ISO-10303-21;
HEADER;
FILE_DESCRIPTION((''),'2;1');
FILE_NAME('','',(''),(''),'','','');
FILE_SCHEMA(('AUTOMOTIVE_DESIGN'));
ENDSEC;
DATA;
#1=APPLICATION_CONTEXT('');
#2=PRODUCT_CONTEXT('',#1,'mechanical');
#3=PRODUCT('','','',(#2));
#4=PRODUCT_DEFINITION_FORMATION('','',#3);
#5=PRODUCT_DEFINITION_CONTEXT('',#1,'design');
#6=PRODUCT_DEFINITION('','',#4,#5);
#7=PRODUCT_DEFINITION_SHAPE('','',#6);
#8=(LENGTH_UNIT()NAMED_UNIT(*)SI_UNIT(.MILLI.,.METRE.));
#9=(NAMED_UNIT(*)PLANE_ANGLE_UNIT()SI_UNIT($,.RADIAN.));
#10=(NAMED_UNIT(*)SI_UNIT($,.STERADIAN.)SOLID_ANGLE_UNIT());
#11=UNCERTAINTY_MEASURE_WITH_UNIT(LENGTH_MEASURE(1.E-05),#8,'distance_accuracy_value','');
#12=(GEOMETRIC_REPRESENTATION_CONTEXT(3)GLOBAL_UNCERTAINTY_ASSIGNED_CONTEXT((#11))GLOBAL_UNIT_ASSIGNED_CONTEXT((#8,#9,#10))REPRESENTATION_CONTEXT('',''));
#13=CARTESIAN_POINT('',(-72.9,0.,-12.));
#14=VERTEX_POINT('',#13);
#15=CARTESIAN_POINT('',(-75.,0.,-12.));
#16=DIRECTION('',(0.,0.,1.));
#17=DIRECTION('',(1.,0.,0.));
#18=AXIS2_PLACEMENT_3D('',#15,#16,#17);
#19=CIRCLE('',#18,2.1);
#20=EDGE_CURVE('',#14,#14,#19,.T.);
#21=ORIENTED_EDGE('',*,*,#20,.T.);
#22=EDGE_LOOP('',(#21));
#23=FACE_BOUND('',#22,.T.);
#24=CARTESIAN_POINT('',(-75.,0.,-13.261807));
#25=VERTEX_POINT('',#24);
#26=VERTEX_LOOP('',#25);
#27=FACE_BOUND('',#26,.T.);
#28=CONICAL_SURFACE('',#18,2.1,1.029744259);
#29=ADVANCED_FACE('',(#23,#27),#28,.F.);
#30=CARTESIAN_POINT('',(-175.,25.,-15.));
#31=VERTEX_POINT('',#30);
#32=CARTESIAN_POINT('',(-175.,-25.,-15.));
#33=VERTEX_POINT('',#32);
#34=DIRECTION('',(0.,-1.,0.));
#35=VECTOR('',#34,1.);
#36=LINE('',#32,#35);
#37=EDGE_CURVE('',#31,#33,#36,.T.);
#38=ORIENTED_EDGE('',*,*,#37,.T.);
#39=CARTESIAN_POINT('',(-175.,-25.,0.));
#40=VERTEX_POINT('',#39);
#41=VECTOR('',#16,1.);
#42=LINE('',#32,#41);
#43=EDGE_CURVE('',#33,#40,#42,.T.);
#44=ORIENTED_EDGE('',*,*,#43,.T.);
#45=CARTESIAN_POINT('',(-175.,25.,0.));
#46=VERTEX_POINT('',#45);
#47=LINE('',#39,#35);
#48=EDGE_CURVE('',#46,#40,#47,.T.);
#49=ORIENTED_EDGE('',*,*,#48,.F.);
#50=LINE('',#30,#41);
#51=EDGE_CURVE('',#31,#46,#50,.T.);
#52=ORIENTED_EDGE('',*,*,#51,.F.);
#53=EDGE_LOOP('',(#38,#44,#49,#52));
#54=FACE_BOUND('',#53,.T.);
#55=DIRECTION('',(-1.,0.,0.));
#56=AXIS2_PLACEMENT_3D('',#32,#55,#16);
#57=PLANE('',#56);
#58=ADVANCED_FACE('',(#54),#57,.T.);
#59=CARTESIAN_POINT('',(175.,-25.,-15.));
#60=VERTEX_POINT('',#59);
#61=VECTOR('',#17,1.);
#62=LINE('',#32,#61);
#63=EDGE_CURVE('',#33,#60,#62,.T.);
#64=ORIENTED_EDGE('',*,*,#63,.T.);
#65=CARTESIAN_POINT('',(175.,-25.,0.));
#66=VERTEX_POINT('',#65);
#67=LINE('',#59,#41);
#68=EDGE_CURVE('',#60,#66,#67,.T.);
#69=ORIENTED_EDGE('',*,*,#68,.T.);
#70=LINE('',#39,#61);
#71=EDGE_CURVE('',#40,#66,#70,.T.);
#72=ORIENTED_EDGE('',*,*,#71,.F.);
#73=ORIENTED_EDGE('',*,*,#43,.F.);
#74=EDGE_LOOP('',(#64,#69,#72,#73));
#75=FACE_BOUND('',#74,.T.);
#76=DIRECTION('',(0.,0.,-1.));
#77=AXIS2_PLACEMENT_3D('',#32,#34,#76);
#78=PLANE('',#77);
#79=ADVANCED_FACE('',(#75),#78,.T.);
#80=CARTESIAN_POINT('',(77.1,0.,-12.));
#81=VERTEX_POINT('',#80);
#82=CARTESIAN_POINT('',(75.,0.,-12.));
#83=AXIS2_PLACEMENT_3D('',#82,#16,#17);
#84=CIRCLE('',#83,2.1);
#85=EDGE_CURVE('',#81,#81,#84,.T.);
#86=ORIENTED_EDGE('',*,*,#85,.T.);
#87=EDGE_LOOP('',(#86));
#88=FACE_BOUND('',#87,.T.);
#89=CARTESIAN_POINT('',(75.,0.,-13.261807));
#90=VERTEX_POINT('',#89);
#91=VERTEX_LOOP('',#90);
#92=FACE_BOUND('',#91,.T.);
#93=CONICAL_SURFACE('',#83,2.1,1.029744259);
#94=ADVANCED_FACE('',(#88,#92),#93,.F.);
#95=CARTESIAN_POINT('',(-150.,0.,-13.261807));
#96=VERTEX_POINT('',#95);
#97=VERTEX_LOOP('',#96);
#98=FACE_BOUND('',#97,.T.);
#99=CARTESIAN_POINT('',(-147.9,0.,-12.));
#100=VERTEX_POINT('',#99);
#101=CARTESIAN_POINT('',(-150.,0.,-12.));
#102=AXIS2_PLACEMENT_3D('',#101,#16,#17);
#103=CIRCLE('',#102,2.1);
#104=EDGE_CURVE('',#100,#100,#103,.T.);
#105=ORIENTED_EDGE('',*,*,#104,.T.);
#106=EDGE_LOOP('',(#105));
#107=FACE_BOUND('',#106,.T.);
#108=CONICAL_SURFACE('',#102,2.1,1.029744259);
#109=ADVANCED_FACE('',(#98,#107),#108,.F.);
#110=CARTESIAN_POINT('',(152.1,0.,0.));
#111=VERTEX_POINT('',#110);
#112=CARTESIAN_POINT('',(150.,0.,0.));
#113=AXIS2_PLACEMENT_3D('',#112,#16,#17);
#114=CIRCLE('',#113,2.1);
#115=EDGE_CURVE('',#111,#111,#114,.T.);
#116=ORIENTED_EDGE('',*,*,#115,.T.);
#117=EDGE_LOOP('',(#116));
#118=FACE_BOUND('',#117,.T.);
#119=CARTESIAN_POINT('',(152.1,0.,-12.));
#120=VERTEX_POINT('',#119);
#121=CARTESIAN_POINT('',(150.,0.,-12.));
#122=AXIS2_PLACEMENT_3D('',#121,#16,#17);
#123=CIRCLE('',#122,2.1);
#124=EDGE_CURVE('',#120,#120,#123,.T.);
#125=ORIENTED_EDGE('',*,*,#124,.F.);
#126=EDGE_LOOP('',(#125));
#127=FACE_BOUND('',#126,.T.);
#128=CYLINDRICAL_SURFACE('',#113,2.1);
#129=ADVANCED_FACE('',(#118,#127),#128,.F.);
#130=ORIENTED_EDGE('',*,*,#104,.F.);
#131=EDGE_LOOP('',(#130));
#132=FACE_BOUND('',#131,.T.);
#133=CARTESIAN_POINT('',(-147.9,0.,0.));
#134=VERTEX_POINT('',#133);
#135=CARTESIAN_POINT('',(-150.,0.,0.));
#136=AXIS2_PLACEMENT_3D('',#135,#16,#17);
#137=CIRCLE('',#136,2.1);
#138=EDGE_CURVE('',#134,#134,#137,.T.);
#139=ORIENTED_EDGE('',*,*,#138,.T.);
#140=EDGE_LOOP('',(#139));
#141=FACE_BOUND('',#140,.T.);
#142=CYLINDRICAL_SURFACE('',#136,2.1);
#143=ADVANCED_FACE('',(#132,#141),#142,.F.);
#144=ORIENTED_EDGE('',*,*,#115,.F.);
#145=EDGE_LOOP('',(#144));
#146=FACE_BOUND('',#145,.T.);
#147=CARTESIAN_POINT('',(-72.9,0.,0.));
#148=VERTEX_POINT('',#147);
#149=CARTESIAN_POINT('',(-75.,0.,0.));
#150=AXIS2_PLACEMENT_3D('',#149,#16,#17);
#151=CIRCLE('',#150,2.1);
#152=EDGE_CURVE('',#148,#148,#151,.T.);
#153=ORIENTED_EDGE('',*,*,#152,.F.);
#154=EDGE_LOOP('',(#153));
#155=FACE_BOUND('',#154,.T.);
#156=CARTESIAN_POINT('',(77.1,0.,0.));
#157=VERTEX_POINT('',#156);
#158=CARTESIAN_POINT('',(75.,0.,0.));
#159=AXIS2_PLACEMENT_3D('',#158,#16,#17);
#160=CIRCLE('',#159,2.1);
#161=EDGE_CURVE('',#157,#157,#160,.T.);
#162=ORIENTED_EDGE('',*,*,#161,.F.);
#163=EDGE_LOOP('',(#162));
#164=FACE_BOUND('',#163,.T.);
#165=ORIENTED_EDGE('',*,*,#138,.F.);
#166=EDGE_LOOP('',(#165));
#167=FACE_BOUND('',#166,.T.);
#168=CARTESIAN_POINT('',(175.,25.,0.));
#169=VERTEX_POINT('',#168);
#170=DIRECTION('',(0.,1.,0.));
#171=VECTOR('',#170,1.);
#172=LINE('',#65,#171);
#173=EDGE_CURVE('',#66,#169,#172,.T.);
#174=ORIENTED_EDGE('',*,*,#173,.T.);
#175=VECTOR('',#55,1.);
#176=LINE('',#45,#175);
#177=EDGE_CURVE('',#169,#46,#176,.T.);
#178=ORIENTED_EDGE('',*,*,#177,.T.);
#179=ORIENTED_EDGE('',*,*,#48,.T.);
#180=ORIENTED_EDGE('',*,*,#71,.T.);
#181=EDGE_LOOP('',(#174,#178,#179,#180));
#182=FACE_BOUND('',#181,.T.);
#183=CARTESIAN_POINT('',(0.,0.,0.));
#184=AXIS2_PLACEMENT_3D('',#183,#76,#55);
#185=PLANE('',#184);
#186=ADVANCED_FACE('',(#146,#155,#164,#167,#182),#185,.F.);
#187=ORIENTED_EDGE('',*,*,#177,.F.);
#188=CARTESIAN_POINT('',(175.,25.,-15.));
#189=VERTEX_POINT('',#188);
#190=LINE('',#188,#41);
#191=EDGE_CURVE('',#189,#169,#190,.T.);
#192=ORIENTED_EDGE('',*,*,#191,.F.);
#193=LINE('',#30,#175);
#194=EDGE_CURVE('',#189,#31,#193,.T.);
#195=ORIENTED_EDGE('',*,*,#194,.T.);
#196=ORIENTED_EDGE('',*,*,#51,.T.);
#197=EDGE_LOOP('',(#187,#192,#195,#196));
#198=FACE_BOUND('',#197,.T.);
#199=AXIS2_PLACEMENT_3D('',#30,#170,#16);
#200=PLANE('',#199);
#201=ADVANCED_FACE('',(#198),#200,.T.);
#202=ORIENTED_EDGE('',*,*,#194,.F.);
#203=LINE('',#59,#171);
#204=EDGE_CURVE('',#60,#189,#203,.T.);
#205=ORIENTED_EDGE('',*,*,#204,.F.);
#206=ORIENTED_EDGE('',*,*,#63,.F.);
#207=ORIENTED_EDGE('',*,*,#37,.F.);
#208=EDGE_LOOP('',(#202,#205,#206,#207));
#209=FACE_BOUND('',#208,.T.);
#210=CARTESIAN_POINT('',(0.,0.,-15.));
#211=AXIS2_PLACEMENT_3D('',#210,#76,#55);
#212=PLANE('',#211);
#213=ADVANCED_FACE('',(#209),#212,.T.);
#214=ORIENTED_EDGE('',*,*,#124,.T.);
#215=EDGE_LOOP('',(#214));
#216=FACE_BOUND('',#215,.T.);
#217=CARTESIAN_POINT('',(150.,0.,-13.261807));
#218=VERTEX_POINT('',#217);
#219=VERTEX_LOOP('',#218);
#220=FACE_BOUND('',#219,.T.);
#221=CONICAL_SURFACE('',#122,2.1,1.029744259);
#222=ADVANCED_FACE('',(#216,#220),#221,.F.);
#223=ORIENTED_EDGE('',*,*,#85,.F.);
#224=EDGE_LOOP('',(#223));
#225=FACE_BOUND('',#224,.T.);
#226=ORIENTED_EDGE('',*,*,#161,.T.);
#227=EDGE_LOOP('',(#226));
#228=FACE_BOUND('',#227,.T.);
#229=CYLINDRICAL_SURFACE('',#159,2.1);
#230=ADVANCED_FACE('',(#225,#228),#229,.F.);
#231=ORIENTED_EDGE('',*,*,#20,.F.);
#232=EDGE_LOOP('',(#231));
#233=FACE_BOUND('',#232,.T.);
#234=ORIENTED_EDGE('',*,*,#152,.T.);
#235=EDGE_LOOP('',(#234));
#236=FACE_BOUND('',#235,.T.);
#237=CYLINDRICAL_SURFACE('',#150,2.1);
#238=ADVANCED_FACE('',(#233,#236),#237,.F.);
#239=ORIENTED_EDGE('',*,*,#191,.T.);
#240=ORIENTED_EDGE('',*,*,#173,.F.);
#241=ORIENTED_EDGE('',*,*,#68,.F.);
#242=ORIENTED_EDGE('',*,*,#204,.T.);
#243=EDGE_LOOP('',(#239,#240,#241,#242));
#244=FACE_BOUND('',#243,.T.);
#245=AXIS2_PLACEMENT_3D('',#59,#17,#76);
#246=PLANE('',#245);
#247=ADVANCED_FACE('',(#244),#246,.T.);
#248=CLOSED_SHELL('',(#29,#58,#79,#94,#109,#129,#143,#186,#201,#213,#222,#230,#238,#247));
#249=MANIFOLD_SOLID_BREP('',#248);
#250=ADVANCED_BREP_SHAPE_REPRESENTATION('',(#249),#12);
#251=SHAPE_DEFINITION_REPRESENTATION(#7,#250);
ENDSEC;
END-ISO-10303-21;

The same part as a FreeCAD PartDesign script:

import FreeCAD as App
import Part
import Sketcher

V = App.Vector

doc = App.newDocument("Part")
body = doc.addObject("PartDesign::Body", "Body")

# Sketch on XY plane
sketch1 = body.newObject("Sketcher::SketchObject", "Sketch")
sketch1.AttachmentSupport = (doc.getObject("XY_Plane"), [""])
sketch1.MapMode = "FlatFace"
sketch1.addGeometry(Part.LineSegment(V(-175, 25, 0), V(-175, -25, 0)), False)
sketch1.addGeometry(Part.LineSegment(V(-175, -25, 0), V(175, -25, 0)), False)
sketch1.addGeometry(Part.LineSegment(V(175, -25, 0), V(175, 25, 0)), False)
sketch1.addGeometry(Part.LineSegment(V(175, 25, 0), V(-175, 25, 0)), False)
sketch1.addConstraint(Sketcher.Constraint("Coincident", 0, 2, 1, 1))
sketch1.addConstraint(Sketcher.Constraint("Coincident", 1, 2, 2, 1))
sketch1.addConstraint(Sketcher.Constraint("Coincident", 2, 2, 3, 1))
sketch1.addConstraint(Sketcher.Constraint("Coincident", 3, 2, 0, 1))
sketch1.addConstraint(Sketcher.Constraint("Vertical", 0))
sketch1.addConstraint(Sketcher.Constraint("Horizontal", 1))
sketch1.addConstraint(Sketcher.Constraint("Vertical", 2))
sketch1.addConstraint(Sketcher.Constraint("Horizontal", 3))
sketch1.addConstraint(Sketcher.Constraint("Symmetric", 0, 2, 2, 2, -1, 1))
sketch1.addConstraint(Sketcher.Constraint("DistanceX", 1, 1, 1, 2, 350.0))
sketch1.addConstraint(Sketcher.Constraint("DistanceY", 0, 2, 0, 1, 50.0))
pad1 = body.newObject("PartDesign::Pad", "Pad")
pad1.Profile = sketch1
pad1.Length = 15
pad1.Reversed = True

# Sketch on XY plane
sketch2 = body.newObject("Sketcher::SketchObject", "Sketch001")
sketch2.AttachmentSupport = (doc.getObject("XY_Plane"), [""])
sketch2.MapMode = "FlatFace"
sketch2.addGeometry(Part.Circle(V(150, 0, 0), V(0, 0, 1), 2.1), False)
sketch2.addGeometry(Part.Circle(V(-150, 0, 0), V(0, 0, 1), 2.1), False)
sketch2.addGeometry(Part.Circle(V(-75, 0, 0), V(0, 0, 1), 2.1), False)
sketch2.addGeometry(Part.Circle(V(75, 0, 0), V(0, 0, 1), 2.1), False)
sketch2.addConstraint(Sketcher.Constraint("Equal", 0, 1))
sketch2.addConstraint(Sketcher.Constraint("Equal", 1, 2))
sketch2.addConstraint(Sketcher.Constraint("Equal", 2, 3))
sketch2.addConstraint(Sketcher.Constraint("Symmetric", 0, 3, 1, 3, -1, 1))
sketch2.addConstraint(Sketcher.Constraint("Symmetric", 2, 3, 3, 3, -1, 1))
sketch2.addConstraint(Sketcher.Constraint("PointOnObject", 0, 3, -1))
sketch2.addConstraint(Sketcher.Constraint("PointOnObject", 2, 3, -1))
sketch2.addConstraint(Sketcher.Constraint("Diameter", 0, 4.2))
sketch2.addConstraint(Sketcher.Constraint("DistanceX", -1, 1, 0, 3, 150.0))
sketch2.addConstraint(Sketcher.Constraint("DistanceX", 2, 3, -1, 1, 75.0))
doc.recompute()
hole = body.newObject("PartDesign::Hole", "Hole")
hole.Profile = sketch2
hole.ThreadType = "None"
hole.Diameter = 4.2
hole.DepthType = "Dimension"
hole.Depth = 12
hole.DrillPoint = "Angled"
hole.DrillPointAngle = 118

doc.recompute()
